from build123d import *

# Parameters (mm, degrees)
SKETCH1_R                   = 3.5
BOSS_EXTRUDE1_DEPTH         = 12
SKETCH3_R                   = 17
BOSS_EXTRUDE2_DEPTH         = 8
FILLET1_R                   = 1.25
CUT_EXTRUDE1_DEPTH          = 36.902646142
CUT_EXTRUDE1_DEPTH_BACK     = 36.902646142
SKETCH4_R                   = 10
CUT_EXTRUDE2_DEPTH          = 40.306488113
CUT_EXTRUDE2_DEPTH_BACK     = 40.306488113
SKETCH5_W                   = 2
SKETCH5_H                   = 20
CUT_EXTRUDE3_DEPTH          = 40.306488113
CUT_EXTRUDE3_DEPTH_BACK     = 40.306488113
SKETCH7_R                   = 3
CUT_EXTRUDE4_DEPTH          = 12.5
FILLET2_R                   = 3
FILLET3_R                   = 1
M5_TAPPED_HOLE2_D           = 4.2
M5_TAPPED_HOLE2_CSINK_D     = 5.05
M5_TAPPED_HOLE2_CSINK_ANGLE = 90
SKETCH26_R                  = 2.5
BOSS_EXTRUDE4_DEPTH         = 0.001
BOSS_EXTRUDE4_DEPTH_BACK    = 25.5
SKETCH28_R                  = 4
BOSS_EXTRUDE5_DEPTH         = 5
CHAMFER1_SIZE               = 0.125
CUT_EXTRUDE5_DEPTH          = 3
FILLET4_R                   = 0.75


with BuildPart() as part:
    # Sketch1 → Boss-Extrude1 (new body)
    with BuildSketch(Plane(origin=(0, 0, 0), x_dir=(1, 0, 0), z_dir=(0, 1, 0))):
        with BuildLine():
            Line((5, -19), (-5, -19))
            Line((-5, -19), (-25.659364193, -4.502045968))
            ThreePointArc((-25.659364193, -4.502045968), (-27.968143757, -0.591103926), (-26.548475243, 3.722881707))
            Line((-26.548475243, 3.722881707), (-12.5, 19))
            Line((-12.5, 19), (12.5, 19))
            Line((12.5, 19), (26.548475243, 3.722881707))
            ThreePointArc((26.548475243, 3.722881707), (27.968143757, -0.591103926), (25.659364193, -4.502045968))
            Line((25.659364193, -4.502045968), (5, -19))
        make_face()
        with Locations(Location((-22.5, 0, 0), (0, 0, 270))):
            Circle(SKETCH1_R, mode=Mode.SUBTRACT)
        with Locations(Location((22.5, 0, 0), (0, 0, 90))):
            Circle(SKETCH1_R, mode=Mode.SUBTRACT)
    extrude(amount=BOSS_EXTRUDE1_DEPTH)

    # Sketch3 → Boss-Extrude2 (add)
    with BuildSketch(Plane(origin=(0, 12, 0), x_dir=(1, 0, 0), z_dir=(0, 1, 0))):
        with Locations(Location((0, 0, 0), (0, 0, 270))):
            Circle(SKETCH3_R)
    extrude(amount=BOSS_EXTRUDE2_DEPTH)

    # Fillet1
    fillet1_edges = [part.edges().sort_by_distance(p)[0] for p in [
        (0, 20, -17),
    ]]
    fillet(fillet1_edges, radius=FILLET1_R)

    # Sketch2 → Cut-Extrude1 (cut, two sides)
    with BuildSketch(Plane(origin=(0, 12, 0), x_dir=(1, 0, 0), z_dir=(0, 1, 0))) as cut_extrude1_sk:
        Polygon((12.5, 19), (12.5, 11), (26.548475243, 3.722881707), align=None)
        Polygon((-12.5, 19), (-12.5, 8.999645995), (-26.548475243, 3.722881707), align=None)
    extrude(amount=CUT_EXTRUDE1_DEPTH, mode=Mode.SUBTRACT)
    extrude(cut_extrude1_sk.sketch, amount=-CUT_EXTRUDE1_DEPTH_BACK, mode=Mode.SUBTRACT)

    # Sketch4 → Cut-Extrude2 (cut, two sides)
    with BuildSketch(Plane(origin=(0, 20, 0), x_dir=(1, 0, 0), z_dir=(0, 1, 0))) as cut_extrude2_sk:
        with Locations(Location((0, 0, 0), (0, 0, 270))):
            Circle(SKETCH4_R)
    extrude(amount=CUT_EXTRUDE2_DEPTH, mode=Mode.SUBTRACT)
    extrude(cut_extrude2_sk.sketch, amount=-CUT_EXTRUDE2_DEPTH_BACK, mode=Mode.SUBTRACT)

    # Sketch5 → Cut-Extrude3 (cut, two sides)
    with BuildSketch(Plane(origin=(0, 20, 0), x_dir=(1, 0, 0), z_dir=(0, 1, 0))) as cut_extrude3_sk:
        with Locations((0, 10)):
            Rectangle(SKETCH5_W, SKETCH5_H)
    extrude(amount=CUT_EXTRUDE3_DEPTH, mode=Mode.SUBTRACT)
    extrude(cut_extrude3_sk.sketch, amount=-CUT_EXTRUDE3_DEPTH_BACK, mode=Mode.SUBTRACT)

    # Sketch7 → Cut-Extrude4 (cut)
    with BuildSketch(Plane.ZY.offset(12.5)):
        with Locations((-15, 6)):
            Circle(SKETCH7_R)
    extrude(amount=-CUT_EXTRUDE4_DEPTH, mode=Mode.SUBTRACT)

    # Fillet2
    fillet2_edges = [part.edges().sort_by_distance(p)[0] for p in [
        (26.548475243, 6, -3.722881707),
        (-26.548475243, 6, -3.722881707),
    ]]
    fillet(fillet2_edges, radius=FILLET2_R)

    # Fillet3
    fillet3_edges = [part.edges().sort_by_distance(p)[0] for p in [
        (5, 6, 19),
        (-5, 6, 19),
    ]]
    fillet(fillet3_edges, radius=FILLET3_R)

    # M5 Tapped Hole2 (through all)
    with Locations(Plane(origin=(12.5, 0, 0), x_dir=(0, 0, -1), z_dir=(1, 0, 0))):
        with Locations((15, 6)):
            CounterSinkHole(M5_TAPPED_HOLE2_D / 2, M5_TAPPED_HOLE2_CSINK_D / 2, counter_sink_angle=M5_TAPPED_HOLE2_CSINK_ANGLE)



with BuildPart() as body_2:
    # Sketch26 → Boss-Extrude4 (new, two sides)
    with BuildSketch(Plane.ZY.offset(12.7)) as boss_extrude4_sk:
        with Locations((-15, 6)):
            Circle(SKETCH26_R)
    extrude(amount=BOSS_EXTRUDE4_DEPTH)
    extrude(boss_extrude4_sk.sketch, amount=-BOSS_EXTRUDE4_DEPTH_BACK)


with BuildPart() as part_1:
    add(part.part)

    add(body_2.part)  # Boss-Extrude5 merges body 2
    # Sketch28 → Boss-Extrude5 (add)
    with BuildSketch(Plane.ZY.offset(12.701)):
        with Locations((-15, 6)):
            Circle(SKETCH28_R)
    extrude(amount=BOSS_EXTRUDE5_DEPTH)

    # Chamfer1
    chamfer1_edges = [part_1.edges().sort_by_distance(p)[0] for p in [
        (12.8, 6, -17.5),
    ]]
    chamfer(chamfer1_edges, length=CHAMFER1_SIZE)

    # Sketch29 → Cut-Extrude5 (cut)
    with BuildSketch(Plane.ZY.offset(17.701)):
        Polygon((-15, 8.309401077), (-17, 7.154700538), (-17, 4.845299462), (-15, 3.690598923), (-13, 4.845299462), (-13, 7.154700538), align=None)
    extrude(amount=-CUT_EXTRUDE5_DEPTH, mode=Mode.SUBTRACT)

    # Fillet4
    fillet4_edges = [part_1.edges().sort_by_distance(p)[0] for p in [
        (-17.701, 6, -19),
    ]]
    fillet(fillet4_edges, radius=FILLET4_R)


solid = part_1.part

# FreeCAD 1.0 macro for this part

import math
import FreeCAD as App
import Part
import Sketcher
Q = App.Units.Quantity


def edges_at(feature, points):
    """Names of the edges that pass closest to the given points."""
    edges = feature.Shape.Edges
    near = lambda p: min(range(len(edges)), key=lambda i: edges[i].distToShape(Part.Vertex(*p))[0])
    return sorted({f"Edge{near(p) + 1}" for p in points})


def add_polygon(sketch, points):
    """Adds a closed chain of lines whose ends are joined by coincident constraints."""
    first, n = sketch.GeometryCount, len(points)
    for a, b in zip(points, points[1:] + points[:1]):
        sketch.addGeometry(Part.LineSegment(App.Vector(*a, 0), App.Vector(*b, 0)), False)
    for i in range(n):
        sketch.addConstraint(Sketcher.Constraint("Coincident", first + i, 2, first + (i + 1) % n, 1))

doc = App.newDocument("Part")
params = doc.addObject("Spreadsheet::Sheet", "Params")
for row, (alias, value) in enumerate([
    ("sketch1_diameter", "7 mm"),
    ("sketch1_radius", "5.5 mm"),
    ("sketch1_width", "10 mm"),
    ("sketch1_width2", "25 mm"),
    ("pad1_length", "12 mm"),
    ("sketch2_diameter", "34 mm"),
    ("pad2_length", "8 mm"),
    ("fillet_radius", "1.25 mm"),
    ("sketch3_height", "8 mm"),
    ("sketch4_diameter", "20 mm"),
    ("sketch5_width", "2 mm"),
    ("sketch5_height", "20 mm"),
    ("sketch6_diameter", "6 mm"),
    ("pocket4_length", "12.5 mm"),
    ("fillet2_radius", "3 mm"),
    ("fillet3_radius", "1 mm"),
    ("sketch7_diameter", "4.2 mm"),
    ("hole_diameter", "4.2 mm"),
    ("hole_csink_diameter", "5.05 mm"),
    ("sketch8_diameter", "5 mm"),
    ("pad3_length", "0.001 mm"),
    ("pad3_length2", "25.5 mm"),
    ("sketch9_diameter", "8 mm"),
    ("pad4_length", "5 mm"),
    ("chamfer_size", "0.125 mm"),
    ("pocket5_length", "3 mm"),
    ("fillet4_radius", "0.75 mm"),
], start=1):
    params.set(f"A{row}", alias)
    params.set(f"B{row}", "=" + value)
    params.setAlias(f"B{row}", alias)

body = doc.addObject("PartDesign::Body", "Body")

# Sketch on XZ plane
sketch1 = doc.addObject("Sketcher::SketchObject", "Sketch")
body.addObject(sketch1)
sketch1.AttachmentSupport = (doc.XZ_Plane, [""])
sketch1.MapMode = "FlatFace"
sketch1.addGeometry([
    Part.LineSegment(App.Vector(-5, 19, 0), App.Vector(5, 19, 0)),  # 0
    Part.LineSegment(App.Vector(5, 19, 0), App.Vector(25.659364, 4.502046, 0)),  # 1
    Part.ArcOfCircle(Part.Circle(App.Vector(22.5, 0, 0), App.Vector(0, 0, 1), 5.5), math.radians(-42.600904), math.radians(54.940286)),  # 2
    Part.LineSegment(App.Vector(26.548475, -3.722882, 0), App.Vector(12.5, -19, 0)),  # 3
    Part.LineSegment(App.Vector(12.5, -19, 0), App.Vector(-12.5, -19, 0)),  # 4
    Part.LineSegment(App.Vector(-12.5, -19, 0), App.Vector(-26.548475, -3.722882, 0)),  # 5
    Part.ArcOfCircle(Part.Circle(App.Vector(-22.5, 0, 0), App.Vector(0, 0, 1), 5.5), math.radians(125.059714), math.radians(222.600904)),  # 6
    Part.LineSegment(App.Vector(-25.659364, 4.502046, 0), App.Vector(-5, 19, 0)),  # 7
    Part.Circle(App.Vector(22.5, 0, 0), App.Vector(0, 0, 1), 3.5),  # 8
    Part.Circle(App.Vector(-22.5, 0, 0), App.Vector(0, 0, 1), 3.5),  # 9
], False)
sketch1.addConstraint([
    Sketcher.Constraint("Coincident", 0, 2, 1, 1),
    Sketcher.Constraint("Tangent", 1, 2, 2, 2),
    Sketcher.Constraint("Tangent", 2, 1, 3, 1),
    Sketcher.Constraint("Coincident", 3, 2, 4, 1),
    Sketcher.Constraint("Coincident", 4, 2, 5, 1),
    Sketcher.Constraint("Tangent", 5, 2, 6, 2),
    Sketcher.Constraint("Tangent", 6, 1, 7, 1),
    Sketcher.Constraint("Coincident", 7, 2, 0, 1),
    Sketcher.Constraint("Horizontal", 0),
    Sketcher.Constraint("Horizontal", 4),
    Sketcher.Constraint("Coincident", 8, 3, 2, 3),
    Sketcher.Constraint("Coincident", 9, 3, 6, 3),
    Sketcher.Constraint("Equal", 2, 6),
    Sketcher.Constraint("Equal", 8, 9),
    Sketcher.Constraint("Symmetric", 2, 3, 6, 3, -1, 1),
    Sketcher.Constraint("Symmetric", 2, 1, 5, 2, -2),
    Sketcher.Constraint("Horizontal", 1, 2, 6, 1),
    Sketcher.Constraint("Diameter", 8, Q("7 mm")),
    Sketcher.Constraint("Radius", 2, Q("5.5 mm")),
    Sketcher.Constraint("DistanceX", 0, 1, 0, 2, Q("10 mm")),
    Sketcher.Constraint("DistanceX", 4, 2, 4, 1, Q("25 mm")),
    Sketcher.Constraint("DistanceY", -1, 1, 0, 2, Q("19 mm")),
    Sketcher.Constraint("DistanceY", 3, 2, -1, 1, Q("19 mm")),
    Sketcher.Constraint("DistanceX", 6, 3, 2, 3, Q("45 mm")),
])
sketch1.setExpression("Constraints[17]", "Params.sketch1_diameter")
sketch1.setExpression("Constraints[18]", "Params.sketch1_radius")
sketch1.setExpression("Constraints[19]", "Params.sketch1_width")
sketch1.setExpression("Constraints[20]", "Params.sketch1_width2")
pad1 = doc.addObject("PartDesign::Pad", "Pad")
body.addObject(pad1)
pad1.Profile = sketch1
pad1.setExpression("Length", "Params.pad1_length")
pad1.Reversed = True

# Sketch on XZ plane
sketch2 = doc.addObject("Sketcher::SketchObject", "Sketch001")
body.addObject(sketch2)
sketch2.AttachmentSupport = (doc.XZ_Plane, [""])
sketch2.MapMode = "FlatFace"
sketch2.AttachmentOffset = App.Placement(App.Vector(0, 0, -12), App.Rotation())
sketch2.addGeometry(Part.Circle(App.Vector(0, 0, 0), App.Vector(0, 0, 1), 17), False)
sketch2.addConstraint([
    Sketcher.Constraint("Coincident", 0, 3, -1, 1),
    Sketcher.Constraint("Diameter", 0, Q("34 mm")),
])
sketch2.setExpression("Constraints[1]", "Params.sketch2_diameter")
pad2 = doc.addObject("PartDesign::Pad", "Pad001")
body.addObject(pad2)
pad2.Profile = sketch2
pad2.setExpression("Length", "Params.pad2_length")
pad2.Reversed = True
doc.recompute()

fillet = doc.addObject("PartDesign::Fillet", "Fillet")
body.addObject(fillet)
fillet.Base = (pad2, edges_at(pad2, [(0, 20, -17)]))
fillet.setExpression("Radius", "Params.fillet_radius")

# Sketch on XZ plane
sketch3 = doc.addObject("Sketcher::SketchObject", "Sketch002")
body.addObject(sketch3)
sketch3.AttachmentSupport = (doc.XZ_Plane, [""])
sketch3.MapMode = "FlatFace"
sketch3.AttachmentOffset = App.Placement(App.Vector(0, 0, -12), App.Rotation())
add_polygon(sketch3, [(12.5, -19), (12.5, -11), (26.548475, -3.722882)])  # lines 0-2
add_polygon(sketch3, [(-12.5, -8.999646), (-12.5, -19), (-26.548475, -3.722882)])  # lines 3-5
sketch3.addConstraint([
    Sketcher.Constraint("Vertical", 0),
    Sketcher.Constraint("Vertical", 3),
    Sketcher.Constraint("Symmetric", 2, 2, 3, 2, -2),
    Sketcher.Constraint("Symmetric", 1, 2, 4, 2, -2),
    Sketcher.Constraint("DistanceY", 0, 1, 0, 2, Q("8 mm")),
    Sketcher.Constraint("DistanceY", 0, 2, -1, 1, Q("11 mm")),
    Sketcher.Constraint("DistanceX", 3, 2, 2, 2, Q("25 mm")),
    Sketcher.Constraint("Distance", 1, Q("15.821381 mm")),
    Sketcher.Constraint("DistanceY", 3, 2, 3, 1, Q("10.000354 mm")),
    Sketcher.Constraint("DistanceY", 1, 2, -1, 1, Q("3.722882 mm")),
])
sketch3.setExpression("Constraints[10]", "Params.sketch3_height")
pocket1 = doc.addObject("PartDesign::Pocket", "Pocket")
body.addObject(pocket1)
pocket1.Profile = sketch3
pocket1.Type = "ThroughAll"
pocket1.Midplane = True

# Sketch on XZ plane
sketch4 = doc.addObject("Sketcher::SketchObject", "Sketch003")
body.addObject(sketch4)
sketch4.AttachmentSupport = (doc.XZ_Plane, [""])
sketch4.MapMode = "FlatFace"
sketch4.AttachmentOffset = App.Placement(App.Vector(0, 0, -20), App.Rotation())
sketch4.addGeometry(Part.Circle(App.Vector(0, 0, 0), App.Vector(0, 0, 1), 10), False)
sketch4.addConstraint([
    Sketcher.Constraint("Coincident", 0, 3, -1, 1),
    Sketcher.Constraint("Diameter", 0, Q("20 mm")),
])
sketch4.setExpression("Constraints[1]", "Params.sketch4_diameter")
pocket2 = doc.addObject("PartDesign::Pocket", "Pocket001")
body.addObject(pocket2)
pocket2.Profile = sketch4
pocket2.Type = "ThroughAll"
pocket2.Midplane = True

# Sketch on XZ plane
sketch5 = doc.addObject("Sketcher::SketchObject", "Sketch004")
body.addObject(sketch5)
sketch5.AttachmentSupport = (doc.XZ_Plane, [""])
sketch5.MapMode = "FlatFace"
sketch5.AttachmentOffset = App.Placement(App.Vector(0, 0, -20), App.Rotation())
add_polygon(sketch5, [(-1, -20), (-1, 0), (1, 0), (1, -20)])  # lines 0-3
sketch5.addConstraint([
    Sketcher.Constraint("Vertical", 0),
    Sketcher.Constraint("Horizontal", 1),
    Sketcher.Constraint("Vertical", 2),
    Sketcher.Constraint("Horizontal", 3),
    Sketcher.Constraint("Symmetric", 0, 2, 1, 2, -1, 1),
    Sketcher.Constraint("DistanceX", 1, 1, 1, 2, Q("2 mm")),
    Sketcher.Constraint("DistanceY", 0, 1, 0, 2, Q("20 mm")),
])
sketch5.setExpression("Constraints[9]", "Params.sketch5_width")
sketch5.setExpression("Constraints[10]", "Params.sketch5_height")
pocket3 = doc.addObject("PartDesign::Pocket", "Pocket002")
body.addObject(pocket3)
pocket3.Profile = sketch5
pocket3.Type = "ThroughAll"
pocket3.Midplane = True

# Sketch on YZ plane
sketch6 = doc.addObject("Sketcher::SketchObject", "Sketch005")
body.addObject(sketch6)
sketch6.AttachmentSupport = (doc.YZ_Plane, [""])
sketch6.MapMode = "FlatFace"
sketch6.AttachmentOffset = App.Placement(App.Vector(0, 0, -12.5), App.Rotation())
sketch6.addGeometry(Part.Circle(App.Vector(6, -15, 0), App.Vector(0, 0, 1), 3), False)
sketch6.addConstraint([
    Sketcher.Constraint("Diameter", 0, Q("6 mm")),
    Sketcher.Constraint("DistanceX", -1, 1, 0, 3, Q("6 mm")),
    Sketcher.Constraint("DistanceY", 0, 3, -1, 1, Q("15 mm")),
])
sketch6.setExpression("Constraints[0]", "Params.sketch6_diameter")
pocket4 = doc.addObject("PartDesign::Pocket", "Pocket003")
body.addObject(pocket4)
pocket4.Profile = sketch6
pocket4.setExpression("Length", "Params.pocket4_length")
pocket4.Reversed = True
doc.recompute()

fillet2 = doc.addObject("PartDesign::Fillet", "Fillet001")
body.addObject(fillet2)
fillet2.Base = (pocket4, edges_at(pocket4, [(26.548, 6, -3.723), (-26.548, 6, -3.723)]))
fillet2.setExpression("Radius", "Params.fillet2_radius")
doc.recompute()

fillet3 = doc.addObject("PartDesign::Fillet", "Fillet002")
body.addObject(fillet3)
fillet3.Base = (fillet2, edges_at(fillet2, [(5, 6, 19), (-5, 6, 19)]))
fillet3.setExpression("Radius", "Params.fillet3_radius")

# Sketch on YZ plane
sketch7 = doc.addObject("Sketcher::SketchObject", "Sketch006")
body.addObject(sketch7)
sketch7.AttachmentSupport = (doc.YZ_Plane, [""])
sketch7.MapMode = "FlatFace"
sketch7.AttachmentOffset = App.Placement(App.Vector(0, 0, 12.5), App.Rotation())
sketch7.addGeometry(Part.Circle(App.Vector(6, -15, 0), App.Vector(0, 0, 1), 2.1), False)
sketch7.addConstraint([
    Sketcher.Constraint("Diameter", 0, Q("4.2 mm")),
    Sketcher.Constraint("DistanceX", -1, 1, 0, 3, Q("6 mm")),
    Sketcher.Constraint("DistanceY", 0, 3, -1, 1, Q("15 mm")),
])
sketch7.setExpression("Constraints[0]", "Params.sketch7_diameter")
doc.recompute()
hole = doc.addObject("PartDesign::Hole", "Hole")
body.addObject(hole)
hole.Profile = sketch7
hole.ThreadType = "None"
hole.setExpression("Diameter", "Params.hole_diameter")
hole.DepthType = "ThroughAll"
hole.HoleCutType = "Countersink"
hole.setExpression("HoleCutDiameter", "Params.hole_csink_diameter")
hole.HoleCutCountersinkAngle = 90
body2 = doc.addObject("PartDesign::Body", "Body001")

# Sketch on YZ plane
sketch8 = doc.addObject("Sketcher::SketchObject", "Sketch007")
body2.addObject(sketch8)
sketch8.AttachmentSupport = (doc.getObject("YZ_Plane001"), [""])
sketch8.MapMode = "FlatFace"
sketch8.AttachmentOffset = App.Placement(App.Vector(0, 0, -12.7), App.Rotation())
sketch8.addGeometry(Part.Circle(App.Vector(6, -15, 0), App.Vector(0, 0, 1), 2.5), False)
sketch8.addConstraint([
    Sketcher.Constraint("Diameter", 0, Q("5 mm")),
    Sketcher.Constraint("DistanceX", -1, 1, 0, 3, Q("6 mm")),
    Sketcher.Constraint("DistanceY", 0, 3, -1, 1, Q("15 mm")),
])
sketch8.setExpression("Constraints[0]", "Params.sketch8_diameter")
pad3 = doc.addObject("PartDesign::Pad", "Pad002")
body2.addObject(pad3)
pad3.Profile = sketch8
pad3.Type = "TwoLengths"
pad3.setExpression("Length", "Params.pad3_length")
pad3.setExpression("Length2", "Params.pad3_length2")
pad3.Reversed = True
doc.recompute()

boolean = doc.addObject("PartDesign::Boolean", "Boolean")
body.addObject(boolean)
boolean.Type = "Fuse"
boolean.addObjects([body2])

# Sketch on YZ plane
sketch9 = doc.addObject("Sketcher::SketchObject", "Sketch008")
body.addObject(sketch9)
sketch9.AttachmentSupport = (doc.YZ_Plane, [""])
sketch9.MapMode = "FlatFace"
sketch9.AttachmentOffset = App.Placement(App.Vector(0, 0, -12.701), App.Rotation())
sketch9.addGeometry(Part.Circle(App.Vector(6, -15, 0), App.Vector(0, 0, 1), 4), False)
sketch9.addConstraint([
    Sketcher.Constraint("Diameter", 0, Q("8 mm")),
    Sketcher.Constraint("DistanceX", -1, 1, 0, 3, Q("6 mm")),
    Sketcher.Constraint("DistanceY", 0, 3, -1, 1, Q("15 mm")),
])
sketch9.setExpression("Constraints[0]", "Params.sketch9_diameter")
pad4 = doc.addObject("PartDesign::Pad", "Pad003")
body.addObject(pad4)
pad4.Profile = sketch9
pad4.setExpression("Length", "Params.pad4_length")
pad4.Reversed = True
doc.recompute()

chamfer = doc.addObject("PartDesign::Chamfer", "Chamfer")
body.addObject(chamfer)
chamfer.Base = (pad4, edges_at(pad4, [(12.8, 6, -17.5)]))
chamfer.setExpression("Size", "Params.chamfer_size")

# Sketch on YZ plane
sketch10 = doc.addObject("Sketcher::SketchObject", "Sketch009")
body.addObject(sketch10)
sketch10.AttachmentSupport = (doc.YZ_Plane, [""])
sketch10.MapMode = "FlatFace"
sketch10.AttachmentOffset = App.Placement(App.Vector(0, 0, -17.701), App.Rotation())
add_polygon(sketch10, [(8.309401, -15), (7.154701, -17), (4.845299, -17), (3.690599, -15), (4.845299, -13), (7.154701, -13)])  # lines 0-5
sketch10.addConstraint([
    Sketcher.Constraint("Horizontal", 1),
    Sketcher.Constraint("Horizontal", 4),
    Sketcher.Constraint("Parallel", 0, 3),
    Sketcher.Constraint("Parallel", 2, 5),
    Sketcher.Constraint("Horizontal", 2, 2, 5, 2),
    Sketcher.Constraint("Vertical", 1, 2, 3, 2),
    Sketcher.Constraint("Vertical", 0, 2, 4, 2),
    Sketcher.Constraint("Angle", 0, Q("-120 deg")),
    Sketcher.Constraint("DistanceY", 0, 2, -1, 1, Q("17 mm")),
    Sketcher.Constraint("DistanceY", 2, 2, -1, 1, Q("15 mm")),
    Sketcher.Constraint("DistanceX", 1, 2, 1, 1, Q("2.309401 mm")),
    Sketcher.Constraint("DistanceX", -1, 1, 0, 2, Q("7.154701 mm")),
])
pocket5 = doc.addObject("PartDesign::Pocket", "Pocket004")
body.addObject(pocket5)
pocket5.Profile = sketch10
pocket5.setExpression("Length", "Params.pocket5_length")
pocket5.Reversed = True
doc.recompute()

fillet4 = doc.addObject("PartDesign::Fillet", "Fillet003")
body.addObject(fillet4)
fillet4.Base = (pocket5, edges_at(pocket5, [(-17.701, 6, -19)]))
fillet4.setExpression("Radius", "Params.fillet4_radius")

doc.recompute()
